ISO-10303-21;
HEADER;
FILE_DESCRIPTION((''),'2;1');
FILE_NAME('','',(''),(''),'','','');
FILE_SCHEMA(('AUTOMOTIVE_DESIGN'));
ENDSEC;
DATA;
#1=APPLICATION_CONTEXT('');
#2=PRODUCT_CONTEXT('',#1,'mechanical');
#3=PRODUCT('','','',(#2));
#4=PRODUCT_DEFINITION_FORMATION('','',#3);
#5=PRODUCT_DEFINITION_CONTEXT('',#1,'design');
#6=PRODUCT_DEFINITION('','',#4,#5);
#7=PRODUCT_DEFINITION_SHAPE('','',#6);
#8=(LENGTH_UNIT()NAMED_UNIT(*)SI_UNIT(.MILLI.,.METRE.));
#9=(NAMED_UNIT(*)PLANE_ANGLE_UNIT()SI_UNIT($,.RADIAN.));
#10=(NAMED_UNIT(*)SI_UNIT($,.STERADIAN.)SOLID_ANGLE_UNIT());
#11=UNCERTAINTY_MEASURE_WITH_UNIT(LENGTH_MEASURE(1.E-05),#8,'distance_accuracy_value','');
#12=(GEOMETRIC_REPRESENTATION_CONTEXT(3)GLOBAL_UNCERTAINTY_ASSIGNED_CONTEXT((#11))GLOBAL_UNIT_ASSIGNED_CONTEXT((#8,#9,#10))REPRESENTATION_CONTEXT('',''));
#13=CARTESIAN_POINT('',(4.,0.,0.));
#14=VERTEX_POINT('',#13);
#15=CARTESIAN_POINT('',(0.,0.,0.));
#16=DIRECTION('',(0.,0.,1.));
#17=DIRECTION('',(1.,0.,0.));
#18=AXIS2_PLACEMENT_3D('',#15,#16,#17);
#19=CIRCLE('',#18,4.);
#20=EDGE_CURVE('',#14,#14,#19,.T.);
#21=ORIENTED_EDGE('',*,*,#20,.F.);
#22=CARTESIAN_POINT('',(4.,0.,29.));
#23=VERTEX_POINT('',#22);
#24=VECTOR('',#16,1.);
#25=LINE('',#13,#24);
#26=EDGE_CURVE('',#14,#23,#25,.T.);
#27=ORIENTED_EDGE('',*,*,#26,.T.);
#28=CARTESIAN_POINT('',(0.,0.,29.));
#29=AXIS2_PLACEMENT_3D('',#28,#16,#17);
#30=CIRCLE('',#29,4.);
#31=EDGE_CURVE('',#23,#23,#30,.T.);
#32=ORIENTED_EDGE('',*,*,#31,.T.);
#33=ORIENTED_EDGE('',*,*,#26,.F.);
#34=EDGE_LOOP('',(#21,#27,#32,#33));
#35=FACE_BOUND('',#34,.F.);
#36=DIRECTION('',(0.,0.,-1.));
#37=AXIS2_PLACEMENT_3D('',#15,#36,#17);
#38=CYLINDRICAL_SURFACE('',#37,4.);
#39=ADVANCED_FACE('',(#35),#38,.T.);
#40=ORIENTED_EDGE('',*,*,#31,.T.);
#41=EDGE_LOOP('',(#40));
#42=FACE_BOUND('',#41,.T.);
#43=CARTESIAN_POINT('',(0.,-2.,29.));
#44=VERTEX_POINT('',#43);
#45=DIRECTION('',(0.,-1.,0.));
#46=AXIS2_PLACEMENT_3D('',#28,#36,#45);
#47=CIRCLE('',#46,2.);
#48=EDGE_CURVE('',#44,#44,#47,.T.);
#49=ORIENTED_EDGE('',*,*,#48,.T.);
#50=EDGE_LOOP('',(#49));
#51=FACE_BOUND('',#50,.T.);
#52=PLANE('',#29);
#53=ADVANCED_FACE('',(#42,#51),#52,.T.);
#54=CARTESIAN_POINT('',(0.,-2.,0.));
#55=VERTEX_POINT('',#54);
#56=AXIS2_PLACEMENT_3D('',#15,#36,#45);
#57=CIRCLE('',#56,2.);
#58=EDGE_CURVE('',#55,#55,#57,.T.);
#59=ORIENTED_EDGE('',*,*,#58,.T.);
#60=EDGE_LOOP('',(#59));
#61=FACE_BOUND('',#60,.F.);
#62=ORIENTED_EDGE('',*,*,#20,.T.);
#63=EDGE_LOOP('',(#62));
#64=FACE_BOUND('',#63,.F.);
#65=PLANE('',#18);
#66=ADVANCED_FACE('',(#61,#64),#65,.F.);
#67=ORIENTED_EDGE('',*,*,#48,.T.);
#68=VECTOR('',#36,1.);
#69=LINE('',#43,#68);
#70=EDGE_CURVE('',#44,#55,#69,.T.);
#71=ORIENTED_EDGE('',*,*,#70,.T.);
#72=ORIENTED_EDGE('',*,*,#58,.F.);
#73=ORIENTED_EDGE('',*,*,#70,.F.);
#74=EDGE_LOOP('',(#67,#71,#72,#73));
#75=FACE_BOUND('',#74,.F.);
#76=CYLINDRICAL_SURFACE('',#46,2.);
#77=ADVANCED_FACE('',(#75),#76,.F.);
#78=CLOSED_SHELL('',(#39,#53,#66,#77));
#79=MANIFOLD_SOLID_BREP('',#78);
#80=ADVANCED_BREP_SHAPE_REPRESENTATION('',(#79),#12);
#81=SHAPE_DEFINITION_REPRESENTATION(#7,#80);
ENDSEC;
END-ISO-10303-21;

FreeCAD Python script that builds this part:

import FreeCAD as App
import Part
import Sketcher

V = App.Vector
Q = App.Units.Quantity

doc = App.newDocument("Part")
body = doc.addObject("PartDesign::Body", "Body")

sketch1 = body.newObject("Sketcher::SketchObject", "Sketch")
sketch1.AttachmentSupport = (doc.getObject("XY_Plane"), [""])
sketch1.MapMode = "FlatFace"
sketch1.addGeometry(Part.Circle(V(0, 0, 0), V(0, 0, 1), 4), False)
sketch1.addConstraint([
    Sketcher.Constraint("Coincident", 0, 3, -1, 1),
    Sketcher.Constraint("Diameter", 0, Q("8 mm")),
])
pad1 = body.newObject("PartDesign::Pad", "Pad")
pad1.Profile = sketch1
pad1.Length = 29

sketch2 = body.newObject("Sketcher::SketchObject", "Sketch001")
sketch2.AttachmentSupport = (doc.getObject("XY_Plane"), [""])
sketch2.MapMode = "FlatFace"
sketch2.AttachmentOffset = App.Placement(V(0, 0, 29), App.Rotation())
sketch2.addGeometry(Part.Circle(V(0, 0, 0), V(0, 0, 1), 2), False)
sketch2.addConstraint([
    Sketcher.Constraint("Coincident", 0, 3, -1, 1),
    Sketcher.Constraint("Diameter", 0, Q("4 mm")),
])
doc.recompute()
hole = body.newObject("PartDesign::Hole", "Hole")
hole.Profile = sketch2
hole.ThreadType = "None"
hole.Diameter = 4
hole.DepthType = "ThroughAll"

doc.recompute()
